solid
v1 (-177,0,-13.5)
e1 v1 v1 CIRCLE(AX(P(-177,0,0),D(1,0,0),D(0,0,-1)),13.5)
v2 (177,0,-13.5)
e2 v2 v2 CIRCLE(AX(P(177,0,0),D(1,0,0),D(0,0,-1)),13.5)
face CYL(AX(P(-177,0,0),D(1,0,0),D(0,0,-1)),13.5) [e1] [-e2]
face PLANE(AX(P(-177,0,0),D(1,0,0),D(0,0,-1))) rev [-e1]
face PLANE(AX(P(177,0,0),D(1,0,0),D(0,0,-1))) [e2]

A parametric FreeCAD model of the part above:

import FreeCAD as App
import Part
import Sketcher
from FreeCAD import Vector

doc = App.newDocument("Part")
body = doc.addObject("PartDesign::Body", "Body")

# Sketch on YZ plane
sketch1 = body.newObject("Sketcher::SketchObject", "Sketch")
sketch1.AttachmentSupport = (doc.getObject("YZ_Plane"), [""])
sketch1.MapMode = "FlatFace"
sketch1.AttachmentOffset = App.Placement(Vector(0, 0, -177), App.Rotation())
sketch1.addGeometry(Part.Circle(Vector(0, 0, 0), Vector(0, 0, 1), 14), False)
sketch1.addConstraint([
    Sketcher.Constraint("Coincident", 0, 3, -1, 1),
    Sketcher.Constraint("Diameter", 0, 27.0),
])
pad1 = body.newObject("PartDesign::Pad", "Pad")
pad1.Profile = sketch1
pad1.Length = 354

doc.recompute()
